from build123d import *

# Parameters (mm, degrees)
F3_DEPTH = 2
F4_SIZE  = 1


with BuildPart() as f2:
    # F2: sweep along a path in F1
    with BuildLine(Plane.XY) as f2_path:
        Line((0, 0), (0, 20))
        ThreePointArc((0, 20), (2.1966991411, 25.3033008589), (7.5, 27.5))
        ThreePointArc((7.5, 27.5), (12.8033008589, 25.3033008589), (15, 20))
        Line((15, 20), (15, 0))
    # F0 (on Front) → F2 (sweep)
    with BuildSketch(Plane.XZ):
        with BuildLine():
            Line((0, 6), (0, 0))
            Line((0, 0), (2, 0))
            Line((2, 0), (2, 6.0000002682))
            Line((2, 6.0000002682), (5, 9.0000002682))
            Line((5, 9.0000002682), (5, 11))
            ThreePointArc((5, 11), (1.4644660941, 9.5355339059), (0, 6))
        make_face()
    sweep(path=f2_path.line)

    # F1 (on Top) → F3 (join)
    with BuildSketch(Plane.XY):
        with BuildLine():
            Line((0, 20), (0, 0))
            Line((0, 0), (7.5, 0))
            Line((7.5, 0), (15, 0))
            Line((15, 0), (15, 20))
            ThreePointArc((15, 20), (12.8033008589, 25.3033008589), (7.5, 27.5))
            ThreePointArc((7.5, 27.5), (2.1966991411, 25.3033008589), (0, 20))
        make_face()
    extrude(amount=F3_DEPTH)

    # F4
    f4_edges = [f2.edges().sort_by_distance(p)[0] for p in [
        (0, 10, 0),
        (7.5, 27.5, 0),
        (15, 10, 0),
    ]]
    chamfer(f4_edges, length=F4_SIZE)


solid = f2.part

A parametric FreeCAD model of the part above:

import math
import FreeCAD as App
import Part
import Sketcher
from FreeCAD import Vector


def edges_at(feature, points):
    """Names of the edges that pass closest to the given points."""
    edges = feature.Shape.Edges
    near = lambda p: min(range(len(edges)), key=lambda i: edges[i].distToShape(Part.Vertex(*p))[0])
    return sorted({f"Edge{near(p) + 1}" for p in points})

doc = App.newDocument("Part")
params = doc.addObject("Spreadsheet::Sheet", "Params")
for row, (alias, value) in enumerate([
    ("sketch1_radius", "5 mm"),
    ("sketch1_width", "2 mm"),
    ("sketch1_height", "6 mm"),
    ("sketch2_radius", "7.5 mm"),
    ("sketch2_height", "20 mm"),
    ("sketch3_radius", "7.5 mm"),
    ("sketch3_height", "20 mm"),
    ("pad1_length", "2 mm"),
    ("chamfer_size", "1 mm"),
], start=1):
    params.set(f"A{row}", alias)
    params.set(f"B{row}", "=" + value)
    params.setAlias(f"B{row}", alias)

body = doc.addObject("PartDesign::Body", "Body")

sketch1 = body.newObject("Sketcher::SketchObject", "Sketch")
sketch1.AttachmentSupport = (doc.getObject("XZ_Plane"), [""])
sketch1.MapMode = "FlatFace"
sketch1.addGeometry([
    Part.LineSegment(Vector(0, 6, 0), Vector(0, 0, 0)),
    Part.LineSegment(Vector(0, 0, 0), Vector(2, 0, 0)),
    Part.LineSegment(Vector(2, 0, 0), Vector(2, 6, 0)),
    Part.LineSegment(Vector(2, 6, 0), Vector(5, 9, 0)),
    Part.LineSegment(Vector(5, 9, 0), Vector(5, 11, 0)),
    Part.ArcOfCircle(Part.Circle(Vector(5, 6, 0), Vector(0, 0, 1), 5), math.radians(90), math.radians(180)),
], False)
sketch1.addConstraint([
    Sketcher.Constraint("Coincident", 0, 2, 1, 1),
    Sketcher.Constraint("Coincident", 1, 2, 2, 1),
    Sketcher.Constraint("Coincident", 2, 2, 3, 1),
    Sketcher.Constraint("Coincident", 3, 2, 4, 1),
    Sketcher.Constraint("Coincident", 4, 2, 5, 1),
    Sketcher.Constraint("Tangent", 5, 2, 0, 1),
    Sketcher.Constraint("Vertical", 0),
    Sketcher.Constraint("Horizontal", 1),
    Sketcher.Constraint("Vertical", 2),
    Sketcher.Constraint("Vertical", 4),
    Sketcher.Constraint("Coincident", 0, 2, -1, 1),
    Sketcher.Constraint("Horizontal", 5, 3, 2, 2),
    Sketcher.Constraint("Vertical", 5, 3, 3, 2),
    Sketcher.Constraint("Equal", 1, 4),
    Sketcher.Constraint("Radius", 5, 5.0),
    Sketcher.Constraint("DistanceX", 1, 1, 1, 2, 2.0),
    Sketcher.Constraint("DistanceY", 0, 2, 0, 1, 6.0),
])
sketch1.setExpression("Constraints[14]", "Params.sketch1_radius")
sketch1.setExpression("Constraints[15]", "Params.sketch1_width")
sketch1.setExpression("Constraints[16]", "Params.sketch1_height")

sketch2 = body.newObject("Sketcher::SketchObject", "Sketch001")
sketch2.AttachmentSupport = (doc.getObject("XY_Plane"), [""])
sketch2.MapMode = "FlatFace"
sketch2.addGeometry([
    Part.LineSegment(Vector(0, 0, 0), Vector(0, 20, 0)),
    Part.ArcOfCircle(Part.Circle(Vector(8, 20, 0), Vector(0, 0, 1), 8), math.radians(0), math.radians(180)),
    Part.LineSegment(Vector(15, 20, 0), Vector(15, 0, 0)),
], False)
sketch2.addConstraint([
    Sketcher.Constraint("Tangent", 0, 2, 1, 2),
    Sketcher.Constraint("Tangent", 1, 1, 2, 1),
    Sketcher.Constraint("Vertical", 0),
    Sketcher.Constraint("Vertical", 2),
    Sketcher.Constraint("Coincident", 0, 1, -1, 1),
    Sketcher.Constraint("PointOnObject", 2, 2, -1),
    Sketcher.Constraint("Radius", 1, 7.5),
    Sketcher.Constraint("DistanceY", 0, 1, 0, 2, 20.0),
])
sketch2.setExpression("Constraints[6]", "Params.sketch2_radius")
sketch2.setExpression("Constraints[7]", "Params.sketch2_height")
doc.recompute()

additivepipe = body.newObject("PartDesign::AdditivePipe", "AdditivePipe")
additivepipe.Profile = sketch1
additivepipe.Spine = (sketch2, ["Edge1", "Edge2", "Edge3"])

sketch3 = body.newObject("Sketcher::SketchObject", "Sketch002")
sketch3.AttachmentSupport = (doc.getObject("XY_Plane"), [""])
sketch3.MapMode = "FlatFace"
sketch3.addGeometry([
    Part.LineSegment(Vector(0, 20, 0), Vector(0, 0, 0)),
    Part.LineSegment(Vector(0, 0, 0), Vector(15, 0, 0)),
    Part.LineSegment(Vector(15, 0, 0), Vector(15, 20, 0)),
    Part.ArcOfCircle(Part.Circle(Vector(8, 20, 0), Vector(0, 0, 1), 8), math.radians(0), math.radians(180)),
], False)
sketch3.addConstraint([
    Sketcher.Constraint("Coincident", 0, 2, 1, 1),
    Sketcher.Constraint("Coincident", 1, 2, 2, 1),
    Sketcher.Constraint("Tangent", 2, 2, 3, 1),
    Sketcher.Constraint("Tangent", 3, 2, 0, 1),
    Sketcher.Constraint("Vertical", 0),
    Sketcher.Constraint("Horizontal", 1),
    Sketcher.Constraint("Vertical", 2),
    Sketcher.Constraint("Coincident", 0, 2, -1, 1),
    Sketcher.Constraint("Radius", 3, 7.5),
    Sketcher.Constraint("DistanceY", 0, 2, 0, 1, 20.0),
])
sketch3.setExpression("Constraints[8]", "Params.sketch3_radius")
sketch3.setExpression("Constraints[9]", "Params.sketch3_height")
pad1 = body.newObject("PartDesign::Pad", "Pad")
pad1.Profile = sketch3
pad1.setExpression("Length", "Params.pad1_length")
doc.recompute()

chamfer = body.newObject("PartDesign::Chamfer", "Chamfer")
chamfer.Base = (pad1, edges_at(pad1, [(0, 10, 0), (7.5, 27.5, 0), (15, 10, 0)]))
chamfer.setExpression("Size", "Params.chamfer_size")

doc.recompute()
